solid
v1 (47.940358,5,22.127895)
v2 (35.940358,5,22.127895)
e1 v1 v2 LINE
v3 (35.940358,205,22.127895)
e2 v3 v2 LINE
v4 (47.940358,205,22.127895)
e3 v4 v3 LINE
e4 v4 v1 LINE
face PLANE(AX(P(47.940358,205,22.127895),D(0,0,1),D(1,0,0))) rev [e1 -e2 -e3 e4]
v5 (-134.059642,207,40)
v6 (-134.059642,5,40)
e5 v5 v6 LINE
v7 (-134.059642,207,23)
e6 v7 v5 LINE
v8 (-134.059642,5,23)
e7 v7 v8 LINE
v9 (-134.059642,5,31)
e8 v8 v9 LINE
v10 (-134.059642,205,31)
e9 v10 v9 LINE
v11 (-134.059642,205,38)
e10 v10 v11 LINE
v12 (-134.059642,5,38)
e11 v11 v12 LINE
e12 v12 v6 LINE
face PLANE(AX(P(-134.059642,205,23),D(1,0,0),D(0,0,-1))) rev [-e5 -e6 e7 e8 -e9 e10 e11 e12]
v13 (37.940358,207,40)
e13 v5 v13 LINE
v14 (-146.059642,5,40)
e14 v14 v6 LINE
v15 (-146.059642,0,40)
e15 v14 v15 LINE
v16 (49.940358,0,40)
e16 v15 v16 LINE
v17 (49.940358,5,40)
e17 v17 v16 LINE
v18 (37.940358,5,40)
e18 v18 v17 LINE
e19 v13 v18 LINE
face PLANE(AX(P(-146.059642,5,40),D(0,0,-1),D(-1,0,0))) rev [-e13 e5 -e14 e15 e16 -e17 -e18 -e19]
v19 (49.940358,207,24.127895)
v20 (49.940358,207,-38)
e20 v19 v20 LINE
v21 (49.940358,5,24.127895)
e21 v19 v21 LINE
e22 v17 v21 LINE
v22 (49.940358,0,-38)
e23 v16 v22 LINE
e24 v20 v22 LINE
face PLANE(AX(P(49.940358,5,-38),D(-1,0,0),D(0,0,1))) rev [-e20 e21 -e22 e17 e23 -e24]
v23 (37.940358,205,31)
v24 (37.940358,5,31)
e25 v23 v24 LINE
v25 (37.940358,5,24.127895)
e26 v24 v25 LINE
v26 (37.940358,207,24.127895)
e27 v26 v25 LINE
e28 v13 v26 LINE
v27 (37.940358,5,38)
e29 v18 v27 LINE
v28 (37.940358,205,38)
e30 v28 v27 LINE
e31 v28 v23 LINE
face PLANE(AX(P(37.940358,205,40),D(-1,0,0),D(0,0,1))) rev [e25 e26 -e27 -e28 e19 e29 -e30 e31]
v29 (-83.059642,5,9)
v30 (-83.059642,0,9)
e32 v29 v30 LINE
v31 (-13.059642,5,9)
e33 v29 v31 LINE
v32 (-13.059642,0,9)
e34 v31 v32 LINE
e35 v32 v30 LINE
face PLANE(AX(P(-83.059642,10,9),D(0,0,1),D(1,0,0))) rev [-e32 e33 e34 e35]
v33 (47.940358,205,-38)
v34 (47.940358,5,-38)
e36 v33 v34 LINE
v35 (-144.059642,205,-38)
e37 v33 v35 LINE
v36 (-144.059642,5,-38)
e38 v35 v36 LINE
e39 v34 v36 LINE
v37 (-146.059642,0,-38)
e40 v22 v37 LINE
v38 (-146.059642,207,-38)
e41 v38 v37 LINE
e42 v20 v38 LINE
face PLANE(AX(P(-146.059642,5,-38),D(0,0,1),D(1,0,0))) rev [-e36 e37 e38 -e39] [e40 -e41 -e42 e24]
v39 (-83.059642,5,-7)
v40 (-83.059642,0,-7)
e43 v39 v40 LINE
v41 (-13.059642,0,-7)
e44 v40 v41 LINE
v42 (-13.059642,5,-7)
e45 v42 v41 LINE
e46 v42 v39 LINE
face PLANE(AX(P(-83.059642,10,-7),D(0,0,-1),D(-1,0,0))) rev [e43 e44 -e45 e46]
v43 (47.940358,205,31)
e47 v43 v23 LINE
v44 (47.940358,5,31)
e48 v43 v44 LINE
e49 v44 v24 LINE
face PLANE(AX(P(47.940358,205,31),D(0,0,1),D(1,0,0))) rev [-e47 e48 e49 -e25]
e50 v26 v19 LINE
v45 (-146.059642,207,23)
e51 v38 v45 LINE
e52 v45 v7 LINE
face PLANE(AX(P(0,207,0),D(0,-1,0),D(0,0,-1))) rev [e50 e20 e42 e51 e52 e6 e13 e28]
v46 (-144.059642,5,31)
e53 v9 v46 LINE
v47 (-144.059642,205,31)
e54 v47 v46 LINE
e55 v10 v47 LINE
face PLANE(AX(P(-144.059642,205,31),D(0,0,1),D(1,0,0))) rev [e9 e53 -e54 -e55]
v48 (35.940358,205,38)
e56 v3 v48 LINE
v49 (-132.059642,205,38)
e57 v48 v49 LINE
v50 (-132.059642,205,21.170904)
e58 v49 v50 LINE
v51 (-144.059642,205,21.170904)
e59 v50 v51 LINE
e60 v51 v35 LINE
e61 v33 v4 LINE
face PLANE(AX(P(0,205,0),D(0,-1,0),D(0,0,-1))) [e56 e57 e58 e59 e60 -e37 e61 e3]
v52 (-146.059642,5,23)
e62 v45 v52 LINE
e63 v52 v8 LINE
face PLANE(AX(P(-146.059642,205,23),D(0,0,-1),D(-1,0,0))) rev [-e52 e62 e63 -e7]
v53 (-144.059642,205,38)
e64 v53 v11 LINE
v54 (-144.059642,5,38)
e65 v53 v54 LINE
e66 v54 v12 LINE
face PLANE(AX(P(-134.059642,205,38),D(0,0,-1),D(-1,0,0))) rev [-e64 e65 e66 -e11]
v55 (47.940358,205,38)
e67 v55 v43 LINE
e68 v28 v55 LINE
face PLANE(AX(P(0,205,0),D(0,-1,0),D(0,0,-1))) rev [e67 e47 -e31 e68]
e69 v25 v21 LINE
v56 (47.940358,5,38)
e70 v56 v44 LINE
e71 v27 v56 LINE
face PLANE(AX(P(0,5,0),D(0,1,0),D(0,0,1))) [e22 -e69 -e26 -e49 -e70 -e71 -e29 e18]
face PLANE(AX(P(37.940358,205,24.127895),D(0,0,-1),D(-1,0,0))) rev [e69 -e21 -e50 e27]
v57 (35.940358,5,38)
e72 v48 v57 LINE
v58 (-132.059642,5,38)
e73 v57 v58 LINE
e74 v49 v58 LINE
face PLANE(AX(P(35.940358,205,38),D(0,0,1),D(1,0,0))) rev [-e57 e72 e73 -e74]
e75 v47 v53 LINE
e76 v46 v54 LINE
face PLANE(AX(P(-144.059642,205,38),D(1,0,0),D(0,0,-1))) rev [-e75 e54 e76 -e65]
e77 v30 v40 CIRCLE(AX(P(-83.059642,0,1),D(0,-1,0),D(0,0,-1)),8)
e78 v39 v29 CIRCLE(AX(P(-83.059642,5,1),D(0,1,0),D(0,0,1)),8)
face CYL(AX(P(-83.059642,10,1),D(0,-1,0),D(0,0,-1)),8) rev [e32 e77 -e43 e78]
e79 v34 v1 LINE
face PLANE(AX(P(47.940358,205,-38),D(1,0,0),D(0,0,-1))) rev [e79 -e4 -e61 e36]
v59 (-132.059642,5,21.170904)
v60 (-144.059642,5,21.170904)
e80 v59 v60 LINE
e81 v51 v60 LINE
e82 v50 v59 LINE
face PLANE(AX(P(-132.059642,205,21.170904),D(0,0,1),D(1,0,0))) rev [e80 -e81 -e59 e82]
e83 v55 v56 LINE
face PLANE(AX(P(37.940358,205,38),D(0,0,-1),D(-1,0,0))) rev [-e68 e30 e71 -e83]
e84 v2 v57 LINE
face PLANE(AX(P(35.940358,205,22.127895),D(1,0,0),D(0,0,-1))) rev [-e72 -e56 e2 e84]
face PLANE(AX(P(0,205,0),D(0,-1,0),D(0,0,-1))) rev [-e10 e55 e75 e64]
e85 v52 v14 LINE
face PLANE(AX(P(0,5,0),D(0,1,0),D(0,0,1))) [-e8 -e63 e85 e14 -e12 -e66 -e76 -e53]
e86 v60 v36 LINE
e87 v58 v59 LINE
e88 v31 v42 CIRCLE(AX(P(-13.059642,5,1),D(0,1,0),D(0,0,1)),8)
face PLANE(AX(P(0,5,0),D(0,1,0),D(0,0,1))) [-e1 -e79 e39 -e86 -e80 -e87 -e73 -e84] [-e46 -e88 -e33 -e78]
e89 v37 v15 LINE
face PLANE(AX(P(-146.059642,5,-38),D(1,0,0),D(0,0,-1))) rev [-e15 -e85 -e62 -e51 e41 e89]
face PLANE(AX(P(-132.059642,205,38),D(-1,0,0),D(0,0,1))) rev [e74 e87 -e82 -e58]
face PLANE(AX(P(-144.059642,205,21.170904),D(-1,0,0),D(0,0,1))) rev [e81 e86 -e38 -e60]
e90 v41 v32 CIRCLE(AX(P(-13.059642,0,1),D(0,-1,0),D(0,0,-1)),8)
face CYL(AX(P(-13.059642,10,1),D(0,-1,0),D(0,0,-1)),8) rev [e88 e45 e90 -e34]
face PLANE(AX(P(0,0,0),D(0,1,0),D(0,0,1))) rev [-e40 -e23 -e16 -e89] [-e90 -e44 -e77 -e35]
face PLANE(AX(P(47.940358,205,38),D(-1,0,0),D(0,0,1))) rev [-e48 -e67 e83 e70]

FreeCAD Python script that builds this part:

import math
import FreeCAD as App
import Part
import Sketcher

V = App.Vector


def add_polygon(sketch, points):
    """Adds a closed chain of lines whose ends are joined by coincident constraints."""
    first, n = sketch.GeometryCount, len(points)
    for a, b in zip(points, points[1:] + points[:1]):
        sketch.addGeometry(Part.LineSegment(App.Vector(*a, 0), App.Vector(*b, 0)), False)
    for i in range(n):
        sketch.addConstraint(Sketcher.Constraint("Coincident", first + i, 2, first + (i + 1) % n, 1))

doc = App.newDocument("Part")
body = doc.addObject("PartDesign::Body", "Body")

# Sketch on XZ plane
sketch1 = body.newObject("Sketcher::SketchObject", "Sketch")
sketch1.AttachmentSupport = (doc.getObject("XZ_Plane"), [""])
sketch1.MapMode = "FlatFace"
add_polygon(sketch1, [(-146, -38), (-146, 40), (50, 40), (50, -38)])  # lines 0-3
sketch1.addConstraint(Sketcher.Constraint("Vertical", 0))
sketch1.addConstraint(Sketcher.Constraint("Horizontal", 1))
sketch1.addConstraint(Sketcher.Constraint("Vertical", 2))
sketch1.addConstraint(Sketcher.Constraint("Horizontal", 3))
sketch1.addConstraint(Sketcher.Constraint("DistanceX", 1, 1, 1, 2, 196.0))
sketch1.addConstraint(Sketcher.Constraint("DistanceY", 0, 1, 0, 2, 78.0))
sketch1.addConstraint(Sketcher.Constraint("DistanceY", -1, 1, 0, 2, 40.0))
sketch1.addConstraint(Sketcher.Constraint("DistanceX", 0, 2, -1, 1, 146.059642))
pad1 = body.newObject("PartDesign::Pad", "Pad")
pad1.Profile = sketch1
pad1.Length = 5
pad1.Reversed = True

# Sketch on XZ plane
sketch2 = body.newObject("Sketcher::SketchObject", "Sketch001")
sketch2.AttachmentSupport = (doc.getObject("XZ_Plane"), [""])
sketch2.MapMode = "FlatFace"
sketch2.AttachmentOffset = App.Placement(V(0, 0, -5), App.Rotation())
add_polygon(sketch2, [(-144, 31), (-144, 38), (-134, 38), (-134, 31)])  # lines 0-3
add_polygon(sketch2, [(38, 31), (38, 38), (48, 38), (48, 31)])  # lines 4-7
sketch2.addConstraint(Sketcher.Constraint("Vertical", 0))
sketch2.addConstraint(Sketcher.Constraint("Horizontal", 1))
sketch2.addConstraint(Sketcher.Constraint("Vertical", 2))
sketch2.addConstraint(Sketcher.Constraint("Horizontal", 3))
sketch2.addConstraint(Sketcher.Constraint("Vertical", 4))
sketch2.addConstraint(Sketcher.Constraint("Horizontal", 5))
sketch2.addConstraint(Sketcher.Constraint("Vertical", 6))
sketch2.addConstraint(Sketcher.Constraint("Horizontal", 7))
sketch2.addConstraint(Sketcher.Constraint("Horizontal", 1, 2, 4, 2))
sketch2.addConstraint(Sketcher.Constraint("Horizontal", 3, 2, 6, 2))
sketch2.addConstraint(Sketcher.Constraint("Equal", 3, 5))
sketch2.addConstraint(Sketcher.Constraint("DistanceX", 1, 1, 1, 2, 10.0))
sketch2.addConstraint(Sketcher.Constraint("DistanceY", 0, 1, 0, 2, 7.0))
sketch2.addConstraint(Sketcher.Constraint("DistanceY", -1, 1, 0, 2, 38.0))
sketch2.addConstraint(Sketcher.Constraint("DistanceX", 1, 2, 4, 2, 172.0))
sketch2.addConstraint(Sketcher.Constraint("DistanceX", 0, 2, -1, 1, 144.059642))
pad2 = body.newObject("PartDesign::Pad", "Pad001")
pad2.Profile = sketch2
pad2.Length = 200
pad2.Reversed = True

# Sketch on XZ plane
sketch3 = body.newObject("Sketcher::SketchObject", "Sketch002")
sketch3.AttachmentSupport = (doc.getObject("XZ_Plane"), [""])
sketch3.MapMode = "FlatFace"
sketch3.AttachmentOffset = App.Placement(V(0, 0, -5), App.Rotation())
add_polygon(sketch3, [(-146.1, 23), (-134.1, 23), (-134.1, 40), (37.9, 40), (37.9, 24.1), (49.9, 24.1), (49.9, -38), (47.9, -38), (47.9, 22.1), (35.9, 22.1), (35.9, 38), (-132.1, 38), (-132.1, 21.2), (-144.1, 21.2), (-144.1, -38), (-146.1, -38)])  # lines 0-15
sketch3.addConstraint(Sketcher.Constraint("Horizontal", 0))
sketch3.addConstraint(Sketcher.Constraint("Vertical", 1))
sketch3.addConstraint(Sketcher.Constraint("Horizontal", 2))
sketch3.addConstraint(Sketcher.Constraint("Vertical", 3))
sketch3.addConstraint(Sketcher.Constraint("Horizontal", 4))
sketch3.addConstraint(Sketcher.Constraint("Vertical", 5))
sketch3.addConstraint(Sketcher.Constraint("Horizontal", 6))
sketch3.addConstraint(Sketcher.Constraint("Vertical", 7))
sketch3.addConstraint(Sketcher.Constraint("Horizontal", 8))
sketch3.addConstraint(Sketcher.Constraint("Vertical", 9))
sketch3.addConstraint(Sketcher.Constraint("Horizontal", 10))
sketch3.addConstraint(Sketcher.Constraint("Vertical", 11))
sketch3.addConstraint(Sketcher.Constraint("Horizontal", 12))
sketch3.addConstraint(Sketcher.Constraint("Vertical", 13))
sketch3.addConstraint(Sketcher.Constraint("Horizontal", 14))
sketch3.addConstraint(Sketcher.Constraint("Vertical", 15))
sketch3.addConstraint(Sketcher.Constraint("Horizontal", 6, 2, 13, 2))
sketch3.addConstraint(Sketcher.Constraint("Equal", 0, 4))
sketch3.addConstraint(Sketcher.Constraint("Equal", 4, 8))
sketch3.addConstraint(Sketcher.Constraint("Equal", 8, 12))
sketch3.addConstraint(Sketcher.Constraint("Equal", 6, 14))
sketch3.addConstraint(Sketcher.Constraint("Equal", 3, 9))
sketch3.addConstraint(Sketcher.Constraint("DistanceX", 0, 1, 0, 2, 12.0))
sketch3.addConstraint(Sketcher.Constraint("DistanceX", 2, 1, 2, 2, 172.0))
sketch3.addConstraint(Sketcher.Constraint("DistanceX", 6, 2, 6, 1, 2.0))
sketch3.addConstraint(Sketcher.Constraint("DistanceY", 1, 1, 1, 2, 17.0))
sketch3.addConstraint(Sketcher.Constraint("DistanceY", 15, 1, 15, 2, 61.0))
sketch3.addConstraint(Sketcher.Constraint("DistanceY", -1, 1, 0, 2, 23.0))
sketch3.addConstraint(Sketcher.Constraint("DistanceY", -1, 1, 9, 2, 38.0))
sketch3.addConstraint(Sketcher.Constraint("DistanceY", 3, 2, 3, 1, 15.872105))
sketch3.addConstraint(Sketcher.Constraint("DistanceY", 11, 2, 11, 1, 16.829096))
sketch3.addConstraint(Sketcher.Constraint("DistanceX", 0, 2, -1, 1, 134.059642))
pad3 = body.newObject("PartDesign::Pad", "Pad002")
pad3.Profile = sketch3
pad3.Length = 200
pad3.Reversed = True

# Sketch on XZ plane
sketch4 = body.newObject("Sketcher::SketchObject", "Sketch003")
sketch4.AttachmentSupport = (doc.getObject("XZ_Plane"), [""])
sketch4.MapMode = "FlatFace"
sketch4.AttachmentOffset = App.Placement(V(0, 0, -205), App.Rotation())
add_polygon(sketch4, [(50, -38), (-146, -38), (-146, 23), (-134, 23), (-134, 40), (38, 40), (38, 24), (50, 24)])  # lines 0-7
sketch4.addConstraint(Sketcher.Constraint("Horizontal", 0))
sketch4.addConstraint(Sketcher.Constraint("Vertical", 1))
sketch4.addConstraint(Sketcher.Constraint("Horizontal", 2))
sketch4.addConstraint(Sketcher.Constraint("Vertical", 3))
sketch4.addConstraint(Sketcher.Constraint("Horizontal", 4))
sketch4.addConstraint(Sketcher.Constraint("Vertical", 5))
sketch4.addConstraint(Sketcher.Constraint("Horizontal", 6))
sketch4.addConstraint(Sketcher.Constraint("Vertical", 7))
sketch4.addConstraint(Sketcher.Constraint("Equal", 2, 6))
sketch4.addConstraint(Sketcher.Constraint("DistanceX", 0, 2, 0, 1, 196.0))
sketch4.addConstraint(Sketcher.Constraint("DistanceX", 2, 1, 2, 2, 12.0))
sketch4.addConstraint(Sketcher.Constraint("DistanceY", 1, 1, 1, 2, 61.0))
sketch4.addConstraint(Sketcher.Constraint("DistanceY", 3, 1, 3, 2, 17.0))
sketch4.addConstraint(Sketcher.Constraint("DistanceY", 0, 2, -1, 1, 38.0))
sketch4.addConstraint(Sketcher.Constraint("DistanceY", 5, 2, 5, 1, 15.872105))
sketch4.addConstraint(Sketcher.Constraint("DistanceX", 0, 2, -1, 1, 146.059642))
pad4 = body.newObject("PartDesign::Pad", "Pad003")
pad4.Profile = sketch4
pad4.Length = 2
pad4.Reversed = True

# Sketch on XZ plane
sketch5 = body.newObject("Sketcher::SketchObject", "Sketch004")
sketch5.AttachmentSupport = (doc.getObject("XZ_Plane"), [""])
sketch5.MapMode = "FlatFace"
sketch5.addGeometry(Part.LineSegment(V(-13, 9, 0), V(-83, 9, 0)), False)
sketch5.addGeometry(Part.ArcOfCircle(Part.Circle(V(-83, 1, 0), V(0, 0, 1), 8), math.radians(90), math.radians(270)), False)
sketch5.addGeometry(Part.LineSegment(V(-83, -7, 0), V(-13, -7, 0)), False)
sketch5.addGeometry(Part.ArcOfCircle(Part.Circle(V(-13, 1, 0), V(0, 0, 1), 8), math.radians(-90), math.radians(90)), False)
sketch5.addConstraint(Sketcher.Constraint("Tangent", 0, 2, 1, 1))
sketch5.addConstraint(Sketcher.Constraint("Tangent", 1, 2, 2, 1))
sketch5.addConstraint(Sketcher.Constraint("Tangent", 2, 2, 3, 1))
sketch5.addConstraint(Sketcher.Constraint("Tangent", 3, 2, 0, 1))
sketch5.addConstraint(Sketcher.Constraint("Horizontal", 0))
sketch5.addConstraint(Sketcher.Constraint("Horizontal", 2))
sketch5.addConstraint(Sketcher.Constraint("Radius", 1, 8.0))
sketch5.addConstraint(Sketcher.Constraint("DistanceX", 0, 2, 0, 1, 70.0))
sketch5.addConstraint(Sketcher.Constraint("DistanceY", -1, 1, 1, 3, 1.0))
sketch5.addConstraint(Sketcher.Constraint("DistanceX", 1, 3, -1, 1, 83.059642))
pocket1 = body.newObject("PartDesign::Pocket", "Pocket")
pocket1.Profile = sketch5
pocket1.Length = 10

doc.recompute()
